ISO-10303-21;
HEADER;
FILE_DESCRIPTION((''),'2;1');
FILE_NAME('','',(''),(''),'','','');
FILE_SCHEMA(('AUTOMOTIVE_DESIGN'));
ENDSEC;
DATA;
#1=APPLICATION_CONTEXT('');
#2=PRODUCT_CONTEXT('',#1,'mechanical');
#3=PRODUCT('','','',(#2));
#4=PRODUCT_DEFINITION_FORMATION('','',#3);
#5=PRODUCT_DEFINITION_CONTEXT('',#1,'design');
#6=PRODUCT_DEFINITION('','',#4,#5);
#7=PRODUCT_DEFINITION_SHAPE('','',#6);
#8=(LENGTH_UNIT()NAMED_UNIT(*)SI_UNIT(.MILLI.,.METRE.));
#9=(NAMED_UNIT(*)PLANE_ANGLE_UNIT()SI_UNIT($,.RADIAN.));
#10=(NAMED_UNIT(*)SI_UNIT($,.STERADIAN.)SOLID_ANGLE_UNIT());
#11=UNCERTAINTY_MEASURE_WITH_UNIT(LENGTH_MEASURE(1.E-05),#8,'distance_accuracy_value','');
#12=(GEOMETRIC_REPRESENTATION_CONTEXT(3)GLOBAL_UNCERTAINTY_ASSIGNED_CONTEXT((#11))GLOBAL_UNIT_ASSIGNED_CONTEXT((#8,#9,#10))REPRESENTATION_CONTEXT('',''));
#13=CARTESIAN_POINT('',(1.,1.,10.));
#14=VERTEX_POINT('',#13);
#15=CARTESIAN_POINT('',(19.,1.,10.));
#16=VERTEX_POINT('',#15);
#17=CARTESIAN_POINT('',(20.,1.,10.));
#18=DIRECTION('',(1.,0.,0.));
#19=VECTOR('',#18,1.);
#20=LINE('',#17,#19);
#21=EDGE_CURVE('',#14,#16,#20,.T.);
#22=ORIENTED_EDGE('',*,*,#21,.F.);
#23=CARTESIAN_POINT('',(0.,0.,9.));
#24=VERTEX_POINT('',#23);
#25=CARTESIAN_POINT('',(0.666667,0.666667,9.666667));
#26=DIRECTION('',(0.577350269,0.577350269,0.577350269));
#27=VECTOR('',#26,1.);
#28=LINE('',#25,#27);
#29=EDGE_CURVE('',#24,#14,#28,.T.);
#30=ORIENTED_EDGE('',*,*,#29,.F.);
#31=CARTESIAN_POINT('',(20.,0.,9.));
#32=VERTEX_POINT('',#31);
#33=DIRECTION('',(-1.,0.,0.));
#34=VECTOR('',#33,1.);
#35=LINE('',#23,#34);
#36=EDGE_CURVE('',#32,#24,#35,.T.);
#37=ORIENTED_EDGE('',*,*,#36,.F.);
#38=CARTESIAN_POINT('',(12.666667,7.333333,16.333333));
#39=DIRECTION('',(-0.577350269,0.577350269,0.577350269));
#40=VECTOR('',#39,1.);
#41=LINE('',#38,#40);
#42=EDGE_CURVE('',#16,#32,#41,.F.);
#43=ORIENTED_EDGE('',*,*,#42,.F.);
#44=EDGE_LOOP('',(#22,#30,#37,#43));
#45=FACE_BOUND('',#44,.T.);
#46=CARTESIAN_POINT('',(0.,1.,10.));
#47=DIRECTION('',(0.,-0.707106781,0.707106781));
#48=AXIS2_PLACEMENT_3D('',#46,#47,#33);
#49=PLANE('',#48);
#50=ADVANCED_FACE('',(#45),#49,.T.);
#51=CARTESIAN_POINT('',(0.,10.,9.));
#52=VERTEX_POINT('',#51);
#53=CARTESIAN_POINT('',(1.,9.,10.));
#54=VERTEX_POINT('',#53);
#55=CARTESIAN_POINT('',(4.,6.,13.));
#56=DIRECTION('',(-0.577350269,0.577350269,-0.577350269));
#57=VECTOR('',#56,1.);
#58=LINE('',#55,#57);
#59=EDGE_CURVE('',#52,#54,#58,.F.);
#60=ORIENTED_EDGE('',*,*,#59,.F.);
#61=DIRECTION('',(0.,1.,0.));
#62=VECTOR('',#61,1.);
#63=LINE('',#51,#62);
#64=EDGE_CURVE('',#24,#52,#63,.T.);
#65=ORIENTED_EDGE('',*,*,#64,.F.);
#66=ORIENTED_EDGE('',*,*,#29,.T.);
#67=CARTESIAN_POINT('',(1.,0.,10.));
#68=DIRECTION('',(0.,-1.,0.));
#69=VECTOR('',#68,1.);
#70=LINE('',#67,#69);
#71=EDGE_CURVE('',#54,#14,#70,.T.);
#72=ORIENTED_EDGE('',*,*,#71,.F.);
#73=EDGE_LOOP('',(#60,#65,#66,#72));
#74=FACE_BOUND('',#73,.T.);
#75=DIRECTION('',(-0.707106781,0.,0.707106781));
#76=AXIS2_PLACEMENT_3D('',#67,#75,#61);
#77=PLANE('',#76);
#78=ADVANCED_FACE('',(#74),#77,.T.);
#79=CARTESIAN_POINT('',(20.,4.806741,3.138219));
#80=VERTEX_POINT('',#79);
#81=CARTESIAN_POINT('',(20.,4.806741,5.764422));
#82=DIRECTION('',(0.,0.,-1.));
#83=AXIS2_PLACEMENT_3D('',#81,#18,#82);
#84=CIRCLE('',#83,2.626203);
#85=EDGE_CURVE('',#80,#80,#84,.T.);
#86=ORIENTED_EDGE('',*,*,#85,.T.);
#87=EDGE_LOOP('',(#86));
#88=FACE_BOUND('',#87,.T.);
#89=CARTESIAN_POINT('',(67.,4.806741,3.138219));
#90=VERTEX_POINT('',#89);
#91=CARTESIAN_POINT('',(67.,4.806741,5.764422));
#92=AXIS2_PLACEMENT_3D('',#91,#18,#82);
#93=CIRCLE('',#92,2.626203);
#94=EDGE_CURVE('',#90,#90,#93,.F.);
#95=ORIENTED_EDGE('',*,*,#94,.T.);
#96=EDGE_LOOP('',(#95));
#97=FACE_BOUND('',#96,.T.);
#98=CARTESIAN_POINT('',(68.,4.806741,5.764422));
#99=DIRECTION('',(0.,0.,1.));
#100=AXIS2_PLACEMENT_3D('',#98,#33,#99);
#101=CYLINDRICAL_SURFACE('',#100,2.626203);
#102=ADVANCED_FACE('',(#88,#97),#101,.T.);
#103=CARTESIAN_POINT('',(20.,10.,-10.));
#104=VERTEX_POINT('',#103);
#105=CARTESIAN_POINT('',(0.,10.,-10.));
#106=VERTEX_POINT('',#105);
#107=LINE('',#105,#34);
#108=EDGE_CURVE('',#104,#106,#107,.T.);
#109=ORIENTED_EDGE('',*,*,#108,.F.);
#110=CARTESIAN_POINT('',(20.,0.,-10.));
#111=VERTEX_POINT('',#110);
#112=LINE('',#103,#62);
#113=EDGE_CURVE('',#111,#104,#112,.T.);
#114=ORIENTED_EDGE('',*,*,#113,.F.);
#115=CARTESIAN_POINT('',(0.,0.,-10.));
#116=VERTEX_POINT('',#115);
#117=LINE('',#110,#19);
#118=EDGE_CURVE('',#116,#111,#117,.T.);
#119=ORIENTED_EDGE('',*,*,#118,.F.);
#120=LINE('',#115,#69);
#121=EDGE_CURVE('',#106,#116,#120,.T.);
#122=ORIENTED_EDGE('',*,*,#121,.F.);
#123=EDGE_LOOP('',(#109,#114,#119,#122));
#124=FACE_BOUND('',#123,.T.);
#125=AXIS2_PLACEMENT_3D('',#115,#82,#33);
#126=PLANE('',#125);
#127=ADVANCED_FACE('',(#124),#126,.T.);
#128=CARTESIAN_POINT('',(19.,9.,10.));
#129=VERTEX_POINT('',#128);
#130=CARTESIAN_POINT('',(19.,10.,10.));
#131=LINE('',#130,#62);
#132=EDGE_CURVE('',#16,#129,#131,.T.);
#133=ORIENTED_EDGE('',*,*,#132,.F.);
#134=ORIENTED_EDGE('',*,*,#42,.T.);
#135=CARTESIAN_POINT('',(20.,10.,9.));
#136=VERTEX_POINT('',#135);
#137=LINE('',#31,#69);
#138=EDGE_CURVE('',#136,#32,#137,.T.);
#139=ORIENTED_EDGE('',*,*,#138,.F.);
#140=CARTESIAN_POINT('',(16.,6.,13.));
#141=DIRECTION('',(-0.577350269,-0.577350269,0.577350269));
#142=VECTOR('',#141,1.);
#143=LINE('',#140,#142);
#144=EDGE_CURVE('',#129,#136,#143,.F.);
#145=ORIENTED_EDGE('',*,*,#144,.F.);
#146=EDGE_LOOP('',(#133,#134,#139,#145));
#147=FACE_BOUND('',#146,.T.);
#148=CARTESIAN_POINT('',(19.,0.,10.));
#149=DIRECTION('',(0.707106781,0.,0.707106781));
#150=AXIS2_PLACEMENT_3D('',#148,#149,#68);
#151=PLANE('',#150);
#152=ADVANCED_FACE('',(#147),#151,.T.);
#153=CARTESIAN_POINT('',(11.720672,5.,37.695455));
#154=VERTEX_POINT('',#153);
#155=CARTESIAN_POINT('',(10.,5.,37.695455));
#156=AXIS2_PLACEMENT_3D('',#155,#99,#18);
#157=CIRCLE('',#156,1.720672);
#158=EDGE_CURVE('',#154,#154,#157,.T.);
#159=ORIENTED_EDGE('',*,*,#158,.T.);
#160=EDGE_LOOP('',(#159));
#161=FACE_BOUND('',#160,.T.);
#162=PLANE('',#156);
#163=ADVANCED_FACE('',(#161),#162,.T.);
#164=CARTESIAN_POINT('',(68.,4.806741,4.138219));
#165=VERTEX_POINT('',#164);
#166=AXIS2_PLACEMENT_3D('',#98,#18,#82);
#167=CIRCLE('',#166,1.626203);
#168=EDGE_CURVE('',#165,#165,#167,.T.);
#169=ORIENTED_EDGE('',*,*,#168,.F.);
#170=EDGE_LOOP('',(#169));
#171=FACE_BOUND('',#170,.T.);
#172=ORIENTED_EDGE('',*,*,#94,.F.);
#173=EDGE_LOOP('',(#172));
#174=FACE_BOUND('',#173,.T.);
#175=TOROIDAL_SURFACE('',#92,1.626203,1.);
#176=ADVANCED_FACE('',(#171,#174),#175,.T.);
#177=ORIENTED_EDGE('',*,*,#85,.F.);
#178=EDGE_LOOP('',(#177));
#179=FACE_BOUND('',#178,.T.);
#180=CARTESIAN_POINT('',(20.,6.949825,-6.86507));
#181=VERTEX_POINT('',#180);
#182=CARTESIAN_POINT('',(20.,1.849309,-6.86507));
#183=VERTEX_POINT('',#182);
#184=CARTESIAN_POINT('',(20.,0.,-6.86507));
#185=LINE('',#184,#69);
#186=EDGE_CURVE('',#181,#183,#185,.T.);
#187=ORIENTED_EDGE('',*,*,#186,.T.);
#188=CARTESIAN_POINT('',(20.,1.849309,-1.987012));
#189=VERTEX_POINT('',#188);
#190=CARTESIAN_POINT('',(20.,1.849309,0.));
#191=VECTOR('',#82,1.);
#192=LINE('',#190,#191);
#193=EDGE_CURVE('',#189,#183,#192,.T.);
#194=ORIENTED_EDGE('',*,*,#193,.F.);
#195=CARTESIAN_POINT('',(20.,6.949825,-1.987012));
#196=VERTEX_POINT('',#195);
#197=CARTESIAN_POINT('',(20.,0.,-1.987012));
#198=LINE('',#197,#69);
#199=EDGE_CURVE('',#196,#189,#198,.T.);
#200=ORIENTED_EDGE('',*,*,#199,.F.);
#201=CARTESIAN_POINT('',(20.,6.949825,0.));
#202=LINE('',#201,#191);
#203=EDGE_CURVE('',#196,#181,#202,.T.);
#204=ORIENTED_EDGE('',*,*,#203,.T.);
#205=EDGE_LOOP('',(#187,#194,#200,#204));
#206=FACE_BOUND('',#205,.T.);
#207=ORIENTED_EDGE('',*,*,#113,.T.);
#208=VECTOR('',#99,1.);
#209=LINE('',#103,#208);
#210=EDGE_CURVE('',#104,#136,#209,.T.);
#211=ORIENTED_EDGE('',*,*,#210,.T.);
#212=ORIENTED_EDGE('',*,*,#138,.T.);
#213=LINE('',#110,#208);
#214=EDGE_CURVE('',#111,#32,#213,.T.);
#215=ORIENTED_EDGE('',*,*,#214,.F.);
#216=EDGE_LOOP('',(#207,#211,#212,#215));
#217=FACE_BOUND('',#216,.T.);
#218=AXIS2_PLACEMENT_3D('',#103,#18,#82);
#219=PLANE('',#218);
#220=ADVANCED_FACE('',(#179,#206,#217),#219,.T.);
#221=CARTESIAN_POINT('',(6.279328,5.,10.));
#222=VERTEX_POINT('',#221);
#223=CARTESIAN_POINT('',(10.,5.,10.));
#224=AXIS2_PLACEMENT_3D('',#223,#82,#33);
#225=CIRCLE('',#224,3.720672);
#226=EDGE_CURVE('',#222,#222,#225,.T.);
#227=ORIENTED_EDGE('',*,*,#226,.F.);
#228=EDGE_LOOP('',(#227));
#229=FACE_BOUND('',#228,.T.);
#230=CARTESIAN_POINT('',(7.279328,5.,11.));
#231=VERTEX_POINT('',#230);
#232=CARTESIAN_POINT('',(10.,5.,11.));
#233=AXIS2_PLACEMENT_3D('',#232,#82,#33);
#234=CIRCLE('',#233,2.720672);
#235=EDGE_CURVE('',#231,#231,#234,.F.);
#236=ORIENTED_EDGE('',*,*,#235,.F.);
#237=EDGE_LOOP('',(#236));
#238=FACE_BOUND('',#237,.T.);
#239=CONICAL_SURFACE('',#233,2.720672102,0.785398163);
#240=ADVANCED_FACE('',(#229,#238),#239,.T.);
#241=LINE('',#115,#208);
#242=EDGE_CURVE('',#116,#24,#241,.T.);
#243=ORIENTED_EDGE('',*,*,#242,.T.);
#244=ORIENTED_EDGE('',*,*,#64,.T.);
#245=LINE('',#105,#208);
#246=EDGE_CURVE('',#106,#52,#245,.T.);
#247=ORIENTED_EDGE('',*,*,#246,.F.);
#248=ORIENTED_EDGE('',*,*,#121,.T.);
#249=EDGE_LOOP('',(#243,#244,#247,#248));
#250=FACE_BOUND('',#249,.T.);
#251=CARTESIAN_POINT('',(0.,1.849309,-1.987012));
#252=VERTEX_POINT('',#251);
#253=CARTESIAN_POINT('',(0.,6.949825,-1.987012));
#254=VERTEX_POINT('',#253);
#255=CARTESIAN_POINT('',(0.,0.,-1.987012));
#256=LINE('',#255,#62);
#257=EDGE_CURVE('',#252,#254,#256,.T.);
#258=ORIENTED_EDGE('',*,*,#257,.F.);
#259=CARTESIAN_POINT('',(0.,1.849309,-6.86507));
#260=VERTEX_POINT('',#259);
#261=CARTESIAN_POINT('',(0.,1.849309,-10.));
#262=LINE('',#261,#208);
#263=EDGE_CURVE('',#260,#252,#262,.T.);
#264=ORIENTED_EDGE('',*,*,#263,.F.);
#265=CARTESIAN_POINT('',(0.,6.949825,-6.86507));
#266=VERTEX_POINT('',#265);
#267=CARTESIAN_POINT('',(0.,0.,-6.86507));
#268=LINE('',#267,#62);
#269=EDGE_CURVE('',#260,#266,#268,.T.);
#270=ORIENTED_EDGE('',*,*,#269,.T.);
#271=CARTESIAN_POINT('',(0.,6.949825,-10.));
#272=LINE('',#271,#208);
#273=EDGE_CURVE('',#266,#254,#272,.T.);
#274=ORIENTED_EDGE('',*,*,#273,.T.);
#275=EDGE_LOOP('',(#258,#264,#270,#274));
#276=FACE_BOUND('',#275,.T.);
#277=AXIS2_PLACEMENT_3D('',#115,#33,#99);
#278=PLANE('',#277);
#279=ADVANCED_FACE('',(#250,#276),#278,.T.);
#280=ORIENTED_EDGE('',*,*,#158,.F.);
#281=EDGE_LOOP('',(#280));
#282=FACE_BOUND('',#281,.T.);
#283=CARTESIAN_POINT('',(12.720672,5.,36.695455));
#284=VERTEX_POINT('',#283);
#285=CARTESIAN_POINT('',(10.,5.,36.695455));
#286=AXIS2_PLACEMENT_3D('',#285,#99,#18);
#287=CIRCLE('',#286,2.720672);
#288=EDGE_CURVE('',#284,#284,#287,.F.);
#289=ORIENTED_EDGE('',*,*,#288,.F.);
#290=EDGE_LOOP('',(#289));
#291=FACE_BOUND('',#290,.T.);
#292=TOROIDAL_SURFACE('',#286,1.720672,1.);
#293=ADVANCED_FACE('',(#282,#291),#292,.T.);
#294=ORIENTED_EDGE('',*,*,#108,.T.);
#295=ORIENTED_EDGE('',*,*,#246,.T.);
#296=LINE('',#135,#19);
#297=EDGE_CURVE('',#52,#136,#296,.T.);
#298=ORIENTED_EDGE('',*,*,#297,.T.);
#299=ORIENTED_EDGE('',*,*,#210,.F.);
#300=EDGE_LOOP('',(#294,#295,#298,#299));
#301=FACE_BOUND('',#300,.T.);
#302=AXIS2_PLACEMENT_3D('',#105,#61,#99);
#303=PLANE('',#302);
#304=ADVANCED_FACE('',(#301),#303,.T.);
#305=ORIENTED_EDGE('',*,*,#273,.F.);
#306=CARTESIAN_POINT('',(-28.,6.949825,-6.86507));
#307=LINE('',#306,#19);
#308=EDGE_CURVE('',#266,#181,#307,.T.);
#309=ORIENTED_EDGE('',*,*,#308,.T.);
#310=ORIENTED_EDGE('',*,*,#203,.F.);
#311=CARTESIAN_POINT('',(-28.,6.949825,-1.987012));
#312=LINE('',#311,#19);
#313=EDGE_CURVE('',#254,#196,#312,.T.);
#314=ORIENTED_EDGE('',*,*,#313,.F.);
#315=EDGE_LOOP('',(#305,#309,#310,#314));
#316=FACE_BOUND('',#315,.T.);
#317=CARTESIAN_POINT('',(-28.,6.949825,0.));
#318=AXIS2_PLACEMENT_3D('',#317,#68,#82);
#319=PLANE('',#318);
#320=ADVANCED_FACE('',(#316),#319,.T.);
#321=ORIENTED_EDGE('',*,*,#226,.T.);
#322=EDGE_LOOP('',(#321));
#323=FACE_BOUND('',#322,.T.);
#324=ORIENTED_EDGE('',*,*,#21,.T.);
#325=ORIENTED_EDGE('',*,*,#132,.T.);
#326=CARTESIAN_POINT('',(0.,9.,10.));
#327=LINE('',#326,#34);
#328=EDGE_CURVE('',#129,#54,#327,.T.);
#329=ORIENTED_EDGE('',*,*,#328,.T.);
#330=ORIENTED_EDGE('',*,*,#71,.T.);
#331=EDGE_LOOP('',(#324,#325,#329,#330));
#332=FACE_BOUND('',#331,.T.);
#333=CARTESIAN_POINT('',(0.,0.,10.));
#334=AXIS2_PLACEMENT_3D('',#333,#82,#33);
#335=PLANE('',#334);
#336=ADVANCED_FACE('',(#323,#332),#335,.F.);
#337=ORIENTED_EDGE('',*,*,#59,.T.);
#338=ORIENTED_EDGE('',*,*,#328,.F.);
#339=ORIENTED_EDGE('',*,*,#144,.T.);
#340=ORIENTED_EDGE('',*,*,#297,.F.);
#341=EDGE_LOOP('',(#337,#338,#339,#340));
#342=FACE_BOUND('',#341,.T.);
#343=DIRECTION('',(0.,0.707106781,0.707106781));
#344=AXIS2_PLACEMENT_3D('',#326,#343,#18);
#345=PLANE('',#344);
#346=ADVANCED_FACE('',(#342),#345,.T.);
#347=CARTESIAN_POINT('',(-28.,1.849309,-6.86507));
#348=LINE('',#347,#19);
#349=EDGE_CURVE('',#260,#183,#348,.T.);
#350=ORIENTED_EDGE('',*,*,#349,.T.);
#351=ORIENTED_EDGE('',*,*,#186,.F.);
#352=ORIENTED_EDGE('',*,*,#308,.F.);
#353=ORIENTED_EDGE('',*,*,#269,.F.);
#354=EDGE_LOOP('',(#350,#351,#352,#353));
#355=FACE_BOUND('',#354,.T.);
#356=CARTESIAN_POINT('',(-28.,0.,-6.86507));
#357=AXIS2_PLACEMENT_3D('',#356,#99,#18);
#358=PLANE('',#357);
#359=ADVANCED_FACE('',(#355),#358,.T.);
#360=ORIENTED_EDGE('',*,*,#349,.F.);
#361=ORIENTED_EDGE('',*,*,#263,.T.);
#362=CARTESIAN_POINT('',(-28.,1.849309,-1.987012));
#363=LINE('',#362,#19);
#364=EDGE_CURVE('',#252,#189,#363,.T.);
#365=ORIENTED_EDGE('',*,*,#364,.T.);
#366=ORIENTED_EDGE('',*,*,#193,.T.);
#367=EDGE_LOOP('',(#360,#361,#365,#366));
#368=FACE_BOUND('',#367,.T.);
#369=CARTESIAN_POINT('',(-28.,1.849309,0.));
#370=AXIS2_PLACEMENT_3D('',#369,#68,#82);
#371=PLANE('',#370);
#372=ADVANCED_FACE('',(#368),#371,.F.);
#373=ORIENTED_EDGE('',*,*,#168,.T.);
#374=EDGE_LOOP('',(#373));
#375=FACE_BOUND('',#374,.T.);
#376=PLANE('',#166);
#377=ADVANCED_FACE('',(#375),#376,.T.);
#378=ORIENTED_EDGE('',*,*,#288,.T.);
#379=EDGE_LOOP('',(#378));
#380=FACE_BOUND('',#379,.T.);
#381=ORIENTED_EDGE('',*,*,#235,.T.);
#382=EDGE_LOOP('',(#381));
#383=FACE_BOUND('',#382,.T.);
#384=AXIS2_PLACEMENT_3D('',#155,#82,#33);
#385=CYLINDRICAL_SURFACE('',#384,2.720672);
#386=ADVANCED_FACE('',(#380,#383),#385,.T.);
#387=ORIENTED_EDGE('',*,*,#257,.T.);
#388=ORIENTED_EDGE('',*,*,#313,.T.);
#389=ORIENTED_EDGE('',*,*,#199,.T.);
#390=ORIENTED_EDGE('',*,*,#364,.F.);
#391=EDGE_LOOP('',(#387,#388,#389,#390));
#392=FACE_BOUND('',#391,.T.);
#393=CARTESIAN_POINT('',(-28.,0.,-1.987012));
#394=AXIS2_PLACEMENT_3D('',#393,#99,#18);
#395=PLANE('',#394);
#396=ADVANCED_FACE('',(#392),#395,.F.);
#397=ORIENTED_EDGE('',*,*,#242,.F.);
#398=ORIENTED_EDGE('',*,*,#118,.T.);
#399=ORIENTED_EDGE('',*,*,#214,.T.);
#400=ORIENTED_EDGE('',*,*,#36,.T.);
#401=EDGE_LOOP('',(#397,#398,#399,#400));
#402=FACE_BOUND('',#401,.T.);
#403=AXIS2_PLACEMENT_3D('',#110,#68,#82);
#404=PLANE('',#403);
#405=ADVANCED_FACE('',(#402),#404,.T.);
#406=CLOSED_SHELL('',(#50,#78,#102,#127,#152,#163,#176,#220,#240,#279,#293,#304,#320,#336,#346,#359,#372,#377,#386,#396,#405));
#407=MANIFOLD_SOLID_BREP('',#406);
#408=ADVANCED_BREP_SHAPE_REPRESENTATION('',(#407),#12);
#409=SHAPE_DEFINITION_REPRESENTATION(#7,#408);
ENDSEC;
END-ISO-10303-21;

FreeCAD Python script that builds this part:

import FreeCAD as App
import Part
import Sketcher
from FreeCAD import Vector
Q = App.Units.Quantity


def edges_at(feature, points):
    """Names of the edges that pass closest to the given points."""
    edges = feature.Shape.Edges
    near = lambda p: min(range(len(edges)), key=lambda i: edges[i].distToShape(Part.Vertex(*p))[0])
    return sorted({f"Edge{near(p) + 1}" for p in points})

doc = App.newDocument("Part")
body = doc.addObject("PartDesign::Body", "Body")

# Sketch on XY plane
sketch1 = body.newObject("Sketcher::SketchObject", "Sketch")
sketch1.AttachmentSupport = (doc.getObject("XY_Plane"), [""])
sketch1.MapMode = "FlatFace"
sketch1.addGeometry([
    Part.LineSegment(Vector(0, 10, 0), Vector(0, 0, 0)),
    Part.LineSegment(Vector(0, 0, 0), Vector(20, 0, 0)),
    Part.LineSegment(Vector(20, 0, 0), Vector(20, 10, 0)),
    Part.LineSegment(Vector(20, 10, 0), Vector(0, 10, 0)),
], False)
sketch1.addConstraint([
    Sketcher.Constraint("Coincident", 0, 2, 1, 1),
    Sketcher.Constraint("Coincident", 1, 2, 2, 1),
    Sketcher.Constraint("Coincident", 2, 2, 3, 1),
    Sketcher.Constraint("Coincident", 3, 2, 0, 1),
    Sketcher.Constraint("Vertical", 0),
    Sketcher.Constraint("Horizontal", 1),
    Sketcher.Constraint("Vertical", 2),
    Sketcher.Constraint("Horizontal", 3),
    Sketcher.Constraint("Coincident", 0, 2, -1, 1),
    Sketcher.Constraint("DistanceX", 1, 1, 1, 2, Q("20 mm")),
    Sketcher.Constraint("DistanceY", 0, 2, 0, 1, Q("10 mm")),
])
pad1 = body.newObject("PartDesign::Pad", "Pad")
pad1.Profile = sketch1
pad1.Type = "TwoLengths"
pad1.Length = 10
pad1.Length2 = 10

# Sketch on XY plane
sketch2 = body.newObject("Sketcher::SketchObject", "Sketch001")
sketch2.AttachmentSupport = (doc.getObject("XY_Plane"), [""])
sketch2.MapMode = "FlatFace"
sketch2.AttachmentOffset = App.Placement(Vector(0, 0, 10), App.Rotation())
sketch2.addGeometry(Part.Circle(Vector(10, 5, 0), Vector(0, 0, 1), 2.720672), False)
sketch2.addConstraint([
    Sketcher.Constraint("DistanceX", -1, 1, 0, 3, Q("10 mm")),
    Sketcher.Constraint("DistanceY", -1, 1, 0, 3, Q("5 mm")),
    Sketcher.Constraint("Diameter", 0, Q("5.441344 mm")),
])
pad2 = body.newObject("PartDesign::Pad", "Pad001")
pad2.Profile = sketch2
pad2.Length = 27.695455

# Sketch on YZ plane
sketch3 = body.newObject("Sketcher::SketchObject", "Sketch002")
sketch3.AttachmentSupport = (doc.getObject("YZ_Plane"), [""])
sketch3.MapMode = "FlatFace"
sketch3.AttachmentOffset = App.Placement(Vector(0, 0, 20), App.Rotation())
sketch3.addGeometry(Part.Circle(Vector(4.806741, 5.764422, 0), Vector(0, 0, 1), 2.626203), False)
sketch3.addConstraint([
    Sketcher.Constraint("Diameter", 0, Q("5.252407 mm")),
    Sketcher.Constraint("DistanceX", -1, 1, 0, 3, Q("4.806741 mm")),
    Sketcher.Constraint("DistanceY", -1, 1, 0, 3, Q("5.764422 mm")),
])
pad3 = body.newObject("PartDesign::Pad", "Pad002")
pad3.Profile = sketch3
pad3.Length = 48

# Sketch on YZ plane
sketch4 = body.newObject("Sketcher::SketchObject", "Sketch003")
sketch4.AttachmentSupport = (doc.getObject("YZ_Plane"), [""])
sketch4.MapMode = "FlatFace"
sketch4.AttachmentOffset = App.Placement(Vector(0, 0, 20), App.Rotation())
sketch4.addGeometry([
    Part.LineSegment(Vector(6.949825, -1.987012, 0), Vector(1.849309, -1.987012, 0)),
    Part.LineSegment(Vector(1.849309, -1.987012, 0), Vector(1.849309, -6.86507, 0)),
    Part.LineSegment(Vector(1.849309, -6.86507, 0), Vector(6.949825, -6.86507, 0)),
    Part.LineSegment(Vector(6.949825, -6.86507, 0), Vector(6.949825, -1.987012, 0)),
], False)
sketch4.addConstraint([
    Sketcher.Constraint("Coincident", 0, 2, 1, 1),
    Sketcher.Constraint("Coincident", 1, 2, 2, 1),
    Sketcher.Constraint("Coincident", 2, 2, 3, 1),
    Sketcher.Constraint("Coincident", 3, 2, 0, 1),
    Sketcher.Constraint("Horizontal", 0),
    Sketcher.Constraint("Vertical", 1),
    Sketcher.Constraint("Horizontal", 2),
    Sketcher.Constraint("Vertical", 3),
    Sketcher.Constraint("DistanceX", 0, 2, 0, 1, Q("5.100516 mm")),
    Sketcher.Constraint("DistanceY", 1, 2, 1, 1, Q("4.878058 mm")),
    Sketcher.Constraint("DistanceX", -1, 1, 0, 2, Q("1.849309 mm")),
    Sketcher.Constraint("DistanceY", 1, 2, -1, 1, Q("6.86507 mm")),
])
pocket1 = body.newObject("PartDesign::Pocket", "Pocket")
pocket1.Profile = sketch4
pocket1.Length = 48
doc.recompute()

fillet = body.newObject("PartDesign::Fillet", "Fillet")
fillet.Base = (pocket1, edges_at(pocket1, [(7.279, 5, 37.695)]))
fillet.Radius = 1
doc.recompute()

chamfer = body.newObject("PartDesign::Chamfer", "Chamfer")
chamfer.Base = (fillet, edges_at(fillet, [
    (0, 5, 10),
    (10, 0, 10),
    (20, 5, 10),
    (10, 10, 10),
    (7.279, 5, 10),
]))
chamfer.Size = 1
doc.recompute()

fillet2 = body.newObject("PartDesign::Fillet", "Fillet001")
fillet2.Base = (chamfer, edges_at(chamfer, [(68, 4.807, 8.391)]))
fillet2.Radius = 1

doc.recompute()
